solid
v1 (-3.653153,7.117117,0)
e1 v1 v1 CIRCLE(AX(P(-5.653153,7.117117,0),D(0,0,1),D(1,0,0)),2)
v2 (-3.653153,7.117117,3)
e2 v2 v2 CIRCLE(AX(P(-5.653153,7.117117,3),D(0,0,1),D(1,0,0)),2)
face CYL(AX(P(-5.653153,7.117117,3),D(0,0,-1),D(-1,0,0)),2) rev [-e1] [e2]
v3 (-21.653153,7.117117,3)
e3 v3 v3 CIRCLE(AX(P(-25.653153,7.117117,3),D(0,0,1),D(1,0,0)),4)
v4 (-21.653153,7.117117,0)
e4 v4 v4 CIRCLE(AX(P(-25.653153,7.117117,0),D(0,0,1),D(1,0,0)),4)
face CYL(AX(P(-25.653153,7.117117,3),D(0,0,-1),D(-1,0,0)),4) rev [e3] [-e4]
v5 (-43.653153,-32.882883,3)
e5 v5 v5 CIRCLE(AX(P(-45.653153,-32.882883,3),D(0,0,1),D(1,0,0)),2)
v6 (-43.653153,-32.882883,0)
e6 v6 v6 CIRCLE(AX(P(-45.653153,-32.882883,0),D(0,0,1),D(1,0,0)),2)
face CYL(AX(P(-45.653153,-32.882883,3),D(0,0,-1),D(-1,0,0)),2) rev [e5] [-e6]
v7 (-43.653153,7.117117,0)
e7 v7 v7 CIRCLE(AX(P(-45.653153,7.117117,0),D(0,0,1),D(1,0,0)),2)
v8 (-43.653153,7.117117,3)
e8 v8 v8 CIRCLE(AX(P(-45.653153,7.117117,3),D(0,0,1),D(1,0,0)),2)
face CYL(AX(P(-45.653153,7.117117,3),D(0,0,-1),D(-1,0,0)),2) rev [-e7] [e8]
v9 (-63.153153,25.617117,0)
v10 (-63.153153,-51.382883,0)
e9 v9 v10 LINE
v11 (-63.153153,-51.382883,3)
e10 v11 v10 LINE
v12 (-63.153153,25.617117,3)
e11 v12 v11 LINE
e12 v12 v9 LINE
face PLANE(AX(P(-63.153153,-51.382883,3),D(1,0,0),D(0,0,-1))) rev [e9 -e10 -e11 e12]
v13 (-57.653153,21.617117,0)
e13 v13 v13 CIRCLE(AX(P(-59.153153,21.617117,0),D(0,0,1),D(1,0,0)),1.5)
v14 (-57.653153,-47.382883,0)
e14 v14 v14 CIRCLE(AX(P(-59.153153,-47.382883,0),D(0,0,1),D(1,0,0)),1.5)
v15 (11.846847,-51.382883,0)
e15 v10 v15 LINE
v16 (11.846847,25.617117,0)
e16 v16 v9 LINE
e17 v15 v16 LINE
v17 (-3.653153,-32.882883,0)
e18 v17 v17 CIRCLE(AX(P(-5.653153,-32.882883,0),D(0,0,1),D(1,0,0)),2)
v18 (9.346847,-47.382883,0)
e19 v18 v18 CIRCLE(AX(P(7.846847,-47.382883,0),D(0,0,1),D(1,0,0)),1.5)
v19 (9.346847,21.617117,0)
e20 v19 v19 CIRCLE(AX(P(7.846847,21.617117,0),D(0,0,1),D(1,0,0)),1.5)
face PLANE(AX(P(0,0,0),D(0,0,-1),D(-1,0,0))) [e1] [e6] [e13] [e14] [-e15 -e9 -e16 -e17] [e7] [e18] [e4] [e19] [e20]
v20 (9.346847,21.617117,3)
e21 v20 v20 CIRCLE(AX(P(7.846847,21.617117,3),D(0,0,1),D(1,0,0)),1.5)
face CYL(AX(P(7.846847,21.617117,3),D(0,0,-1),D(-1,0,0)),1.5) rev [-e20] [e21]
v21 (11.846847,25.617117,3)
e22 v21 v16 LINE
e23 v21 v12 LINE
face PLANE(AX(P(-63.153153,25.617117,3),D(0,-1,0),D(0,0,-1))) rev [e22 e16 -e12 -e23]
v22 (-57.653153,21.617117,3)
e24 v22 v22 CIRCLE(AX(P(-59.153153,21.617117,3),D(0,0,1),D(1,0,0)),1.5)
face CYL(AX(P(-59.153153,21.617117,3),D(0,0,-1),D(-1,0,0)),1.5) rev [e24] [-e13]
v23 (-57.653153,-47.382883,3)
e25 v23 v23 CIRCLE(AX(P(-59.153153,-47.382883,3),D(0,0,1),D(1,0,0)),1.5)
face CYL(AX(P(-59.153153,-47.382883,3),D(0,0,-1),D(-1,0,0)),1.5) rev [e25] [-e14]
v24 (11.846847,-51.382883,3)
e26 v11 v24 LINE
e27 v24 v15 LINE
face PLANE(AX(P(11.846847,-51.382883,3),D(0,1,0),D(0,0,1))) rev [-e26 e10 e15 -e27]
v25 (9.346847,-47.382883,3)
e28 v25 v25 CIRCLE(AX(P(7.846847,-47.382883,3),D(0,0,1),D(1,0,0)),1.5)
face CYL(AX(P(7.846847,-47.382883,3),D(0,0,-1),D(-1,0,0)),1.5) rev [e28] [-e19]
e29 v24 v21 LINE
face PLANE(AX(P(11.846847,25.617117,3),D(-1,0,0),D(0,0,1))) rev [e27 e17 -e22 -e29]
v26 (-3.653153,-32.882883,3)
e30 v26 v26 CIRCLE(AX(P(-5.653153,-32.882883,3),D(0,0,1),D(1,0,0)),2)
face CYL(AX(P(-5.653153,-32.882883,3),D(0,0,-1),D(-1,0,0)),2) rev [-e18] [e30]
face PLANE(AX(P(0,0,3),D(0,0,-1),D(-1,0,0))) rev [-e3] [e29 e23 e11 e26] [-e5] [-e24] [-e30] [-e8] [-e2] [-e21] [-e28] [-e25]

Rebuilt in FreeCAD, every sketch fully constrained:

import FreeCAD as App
import Part
import Sketcher
from FreeCAD import Vector
Q = App.Units.Quantity


def add_polygon(sketch, points):
    """Adds a closed chain of lines whose ends are joined by coincident constraints."""
    first, n = sketch.GeometryCount, len(points)
    for a, b in zip(points, points[1:] + points[:1]):
        sketch.addGeometry(Part.LineSegment(App.Vector(*a, 0), App.Vector(*b, 0)), False)
    for i in range(n):
        sketch.addConstraint(Sketcher.Constraint("Coincident", first + i, 2, first + (i + 1) % n, 1))

doc = App.newDocument("Part")
body = doc.addObject("PartDesign::Body", "Body")

# Sketch on XY plane
sketch1 = doc.addObject("Sketcher::SketchObject", "Sketch")
body.addObject(sketch1)
sketch1.AttachmentSupport = (doc.XY_Plane, [""])
sketch1.MapMode = "FlatFace"
add_polygon(sketch1, [(-63.2, 25.6), (-63.2, -51.4), (11.8, -51.4), (11.8, 25.6)])  # lines 0-3
sketch1.addGeometry(Part.Circle(Vector(-59.2, -47.4, 0), Vector(0, 0, 1), 1.5), False)  # 4
sketch1.addGeometry(Part.Circle(Vector(-45.7, -32.9, 0), Vector(0, 0, 1), 2), False)  # 5
sketch1.addGeometry(Part.Circle(Vector(7.8, -47.4, 0), Vector(0, 0, 1), 1.5), False)  # 6
sketch1.addGeometry(Part.Circle(Vector(-5.7, -32.9, 0), Vector(0, 0, 1), 2), False)  # 7
sketch1.addGeometry(Part.Circle(Vector(-45.7, 7.1, 0), Vector(0, 0, 1), 2), False)  # 8
sketch1.addGeometry(Part.Circle(Vector(-59.2, 21.6, 0), Vector(0, 0, 1), 1.5), False)  # 9
sketch1.addGeometry(Part.Circle(Vector(-25.7, 7.1, 0), Vector(0, 0, 1), 4), False)  # 10
sketch1.addGeometry(Part.Circle(Vector(-5.7, 7.1, 0), Vector(0, 0, 1), 2), False)  # 11
sketch1.addGeometry(Part.Circle(Vector(7.8, 21.6, 0), Vector(0, 0, 1), 1.5), False)  # 12
sketch1.addConstraint([
    Sketcher.Constraint("Vertical", 0),
    Sketcher.Constraint("Horizontal", 1),
    Sketcher.Constraint("Vertical", 2),
    Sketcher.Constraint("Horizontal", 3),
    Sketcher.Constraint("Equal", 4, 6),
    Sketcher.Constraint("Equal", 5, 7),
    Sketcher.Constraint("Equal", 7, 8),
    Sketcher.Constraint("Equal", 6, 9),
    Sketcher.Constraint("Equal", 8, 11),
    Sketcher.Constraint("Equal", 9, 12),
    Sketcher.Constraint("Horizontal", 4, 3, 6, 3),
    Sketcher.Constraint("Horizontal", 5, 3, 7, 3),
    Sketcher.Constraint("Horizontal", 8, 3, 10, 3),
    Sketcher.Constraint("Horizontal", 10, 3, 11, 3),
    Sketcher.Constraint("Horizontal", 9, 3, 12, 3),
    Sketcher.Constraint("Vertical", 5, 3, 8, 3),
    Sketcher.Constraint("Vertical", 4, 3, 9, 3),
    Sketcher.Constraint("Vertical", 7, 3, 11, 3),
    Sketcher.Constraint("Vertical", 6, 3, 12, 3),
    Sketcher.Constraint("Diameter", 4, Q("3 mm")),
    Sketcher.Constraint("Diameter", 5, Q("4 mm")),
    Sketcher.Constraint("Diameter", 10, Q("8 mm")),
    Sketcher.Constraint("DistanceX", 1, 1, 1, 2, Q("75 mm")),
    Sketcher.Constraint("DistanceY", 0, 2, 0, 1, Q("77 mm")),
    Sketcher.Constraint("DistanceX", 4, 3, 6, 3, Q("67 mm")),
    Sketcher.Constraint("DistanceX", 5, 3, 7, 3, Q("40 mm")),
    Sketcher.Constraint("DistanceY", 5, 3, 8, 3, Q("40 mm")),
    Sketcher.Constraint("DistanceY", 4, 3, 9, 3, Q("69 mm")),
    Sketcher.Constraint("DistanceX", 8, 3, 10, 3, Q("20 mm")),
    Sketcher.Constraint("DistanceX", 0, 2, 4, 3, Q("4 mm")),
    Sketcher.Constraint("DistanceY", 0, 2, 4, 3, Q("4 mm")),
    Sketcher.Constraint("DistanceX", 4, 3, 5, 3, Q("13.5 mm")),
    Sketcher.Constraint("DistanceY", 4, 3, 5, 3, Q("14.5 mm")),
    Sketcher.Constraint("DistanceX", 4, 3, -1, 1, Q("59.153153 mm")),
    Sketcher.Constraint("DistanceY", 4, 3, -1, 1, Q("47.382883 mm")),
])
pad1 = doc.addObject("PartDesign::Pad", "Pad")
body.addObject(pad1)
pad1.Profile = sketch1
pad1.Length = 3

doc.recompute()
